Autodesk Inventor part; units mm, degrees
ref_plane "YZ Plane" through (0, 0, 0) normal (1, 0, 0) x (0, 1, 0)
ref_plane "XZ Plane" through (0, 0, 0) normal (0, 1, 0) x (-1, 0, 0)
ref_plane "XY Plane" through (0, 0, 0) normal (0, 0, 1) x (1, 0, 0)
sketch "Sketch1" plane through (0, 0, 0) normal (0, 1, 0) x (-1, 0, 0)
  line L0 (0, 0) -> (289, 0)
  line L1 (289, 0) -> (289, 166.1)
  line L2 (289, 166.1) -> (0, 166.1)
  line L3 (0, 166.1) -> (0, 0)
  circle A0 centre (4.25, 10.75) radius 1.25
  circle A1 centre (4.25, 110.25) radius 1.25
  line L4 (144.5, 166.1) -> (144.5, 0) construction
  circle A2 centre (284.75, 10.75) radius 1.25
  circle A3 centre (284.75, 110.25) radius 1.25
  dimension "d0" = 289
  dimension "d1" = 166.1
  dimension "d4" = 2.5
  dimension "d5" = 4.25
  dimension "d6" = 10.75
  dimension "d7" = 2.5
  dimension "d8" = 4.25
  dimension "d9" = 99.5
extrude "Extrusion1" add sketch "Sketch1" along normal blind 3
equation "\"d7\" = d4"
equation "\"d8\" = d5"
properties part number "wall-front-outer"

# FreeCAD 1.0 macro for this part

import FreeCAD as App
import Part
import Sketcher
Q = App.Units.Quantity

doc = App.newDocument("Part")
params = doc.addObject("Spreadsheet::Sheet", "Params")
for row, (alias, value) in enumerate([
    ("sketch1_diameter", "2.5 mm"),
    ("sketch1_width", "289 mm"),
    ("sketch1_height", "166.1 mm"),
    ("pad1_length", "3 mm"),
], start=1):
    params.set(f"A{row}", alias)
    params.set(f"B{row}", "=" + value)
    params.setAlias(f"B{row}", alias)

body = doc.addObject("PartDesign::Body", "Body")

# Sketch on XZ plane
sketch1 = doc.addObject("Sketcher::SketchObject", "Sketch")
body.addObject(sketch1)
sketch1.AttachmentSupport = (doc.XZ_Plane, [""])
sketch1.MapMode = "FlatFace"
sketch1.addGeometry(Part.LineSegment(App.Vector(0, 166.1, 0), App.Vector(0, 0, 0)), False)
sketch1.addGeometry(Part.LineSegment(App.Vector(0, 0, 0), App.Vector(-289, 0, 0)), False)
sketch1.addGeometry(Part.LineSegment(App.Vector(-289, 0, 0), App.Vector(-289, 166.1, 0)), False)
sketch1.addGeometry(Part.LineSegment(App.Vector(-289, 166.1, 0), App.Vector(0, 166.1, 0)), False)
sketch1.addGeometry(Part.Circle(App.Vector(-4.2, 10.8, 0), App.Vector(0, 0, 1), 1.2), False)
sketch1.addGeometry(Part.Circle(App.Vector(-284.8, 10.8, 0), App.Vector(0, 0, 1), 1.2), False)
sketch1.addGeometry(Part.Circle(App.Vector(-4.2, 110.2, 0), App.Vector(0, 0, 1), 1.2), False)
sketch1.addGeometry(Part.Circle(App.Vector(-284.8, 110.2, 0), App.Vector(0, 0, 1), 1.2), False)
sketch1.addConstraint(Sketcher.Constraint("Coincident", 0, 2, 1, 1))
sketch1.addConstraint(Sketcher.Constraint("Coincident", 1, 2, 2, 1))
sketch1.addConstraint(Sketcher.Constraint("Coincident", 2, 2, 3, 1))
sketch1.addConstraint(Sketcher.Constraint("Coincident", 3, 2, 0, 1))
sketch1.addConstraint(Sketcher.Constraint("Vertical", 0))
sketch1.addConstraint(Sketcher.Constraint("Horizontal", 1))
sketch1.addConstraint(Sketcher.Constraint("Vertical", 2))
sketch1.addConstraint(Sketcher.Constraint("Horizontal", 3))
sketch1.addConstraint(Sketcher.Constraint("Coincident", 0, 2, -1, 1))
sketch1.addConstraint(Sketcher.Constraint("Equal", 4, 5))
sketch1.addConstraint(Sketcher.Constraint("Equal", 5, 6))
sketch1.addConstraint(Sketcher.Constraint("Equal", 6, 7))
sketch1.addConstraint(Sketcher.Constraint("Horizontal", 4, 3, 5, 3))
sketch1.addConstraint(Sketcher.Constraint("Horizontal", 6, 3, 7, 3))
sketch1.addConstraint(Sketcher.Constraint("Vertical", 4, 3, 6, 3))
sketch1.addConstraint(Sketcher.Constraint("Vertical", 5, 3, 7, 3))
sketch1.addConstraint(Sketcher.Constraint("Diameter", 4, Q("2.5 mm")))
sketch1.addConstraint(Sketcher.Constraint("DistanceX", 1, 2, 1, 1, Q("289 mm")))
sketch1.addConstraint(Sketcher.Constraint("DistanceY", 0, 2, 0, 1, Q("166.1 mm")))
sketch1.addConstraint(Sketcher.Constraint("DistanceY", 4, 3, 6, 3, Q("99.5 mm")))
sketch1.addConstraint(Sketcher.Constraint("DistanceX", 4, 3, -1, 1, Q("4.25 mm")))
sketch1.addConstraint(Sketcher.Constraint("DistanceY", -1, 1, 4, 3, Q("10.75 mm")))
sketch1.addConstraint(Sketcher.Constraint("DistanceX", 1, 2, 5, 3, Q("4.25 mm")))
sketch1.setExpression("Constraints[16]", "Params.sketch1_diameter")
sketch1.setExpression("Constraints[17]", "Params.sketch1_width")
sketch1.setExpression("Constraints[18]", "Params.sketch1_height")
pad1 = doc.addObject("PartDesign::Pad", "Pad")
body.addObject(pad1)
pad1.Profile = sketch1
pad1.setExpression("Length", "Params.pad1_length")
pad1.Reversed = True

doc.recompute()
